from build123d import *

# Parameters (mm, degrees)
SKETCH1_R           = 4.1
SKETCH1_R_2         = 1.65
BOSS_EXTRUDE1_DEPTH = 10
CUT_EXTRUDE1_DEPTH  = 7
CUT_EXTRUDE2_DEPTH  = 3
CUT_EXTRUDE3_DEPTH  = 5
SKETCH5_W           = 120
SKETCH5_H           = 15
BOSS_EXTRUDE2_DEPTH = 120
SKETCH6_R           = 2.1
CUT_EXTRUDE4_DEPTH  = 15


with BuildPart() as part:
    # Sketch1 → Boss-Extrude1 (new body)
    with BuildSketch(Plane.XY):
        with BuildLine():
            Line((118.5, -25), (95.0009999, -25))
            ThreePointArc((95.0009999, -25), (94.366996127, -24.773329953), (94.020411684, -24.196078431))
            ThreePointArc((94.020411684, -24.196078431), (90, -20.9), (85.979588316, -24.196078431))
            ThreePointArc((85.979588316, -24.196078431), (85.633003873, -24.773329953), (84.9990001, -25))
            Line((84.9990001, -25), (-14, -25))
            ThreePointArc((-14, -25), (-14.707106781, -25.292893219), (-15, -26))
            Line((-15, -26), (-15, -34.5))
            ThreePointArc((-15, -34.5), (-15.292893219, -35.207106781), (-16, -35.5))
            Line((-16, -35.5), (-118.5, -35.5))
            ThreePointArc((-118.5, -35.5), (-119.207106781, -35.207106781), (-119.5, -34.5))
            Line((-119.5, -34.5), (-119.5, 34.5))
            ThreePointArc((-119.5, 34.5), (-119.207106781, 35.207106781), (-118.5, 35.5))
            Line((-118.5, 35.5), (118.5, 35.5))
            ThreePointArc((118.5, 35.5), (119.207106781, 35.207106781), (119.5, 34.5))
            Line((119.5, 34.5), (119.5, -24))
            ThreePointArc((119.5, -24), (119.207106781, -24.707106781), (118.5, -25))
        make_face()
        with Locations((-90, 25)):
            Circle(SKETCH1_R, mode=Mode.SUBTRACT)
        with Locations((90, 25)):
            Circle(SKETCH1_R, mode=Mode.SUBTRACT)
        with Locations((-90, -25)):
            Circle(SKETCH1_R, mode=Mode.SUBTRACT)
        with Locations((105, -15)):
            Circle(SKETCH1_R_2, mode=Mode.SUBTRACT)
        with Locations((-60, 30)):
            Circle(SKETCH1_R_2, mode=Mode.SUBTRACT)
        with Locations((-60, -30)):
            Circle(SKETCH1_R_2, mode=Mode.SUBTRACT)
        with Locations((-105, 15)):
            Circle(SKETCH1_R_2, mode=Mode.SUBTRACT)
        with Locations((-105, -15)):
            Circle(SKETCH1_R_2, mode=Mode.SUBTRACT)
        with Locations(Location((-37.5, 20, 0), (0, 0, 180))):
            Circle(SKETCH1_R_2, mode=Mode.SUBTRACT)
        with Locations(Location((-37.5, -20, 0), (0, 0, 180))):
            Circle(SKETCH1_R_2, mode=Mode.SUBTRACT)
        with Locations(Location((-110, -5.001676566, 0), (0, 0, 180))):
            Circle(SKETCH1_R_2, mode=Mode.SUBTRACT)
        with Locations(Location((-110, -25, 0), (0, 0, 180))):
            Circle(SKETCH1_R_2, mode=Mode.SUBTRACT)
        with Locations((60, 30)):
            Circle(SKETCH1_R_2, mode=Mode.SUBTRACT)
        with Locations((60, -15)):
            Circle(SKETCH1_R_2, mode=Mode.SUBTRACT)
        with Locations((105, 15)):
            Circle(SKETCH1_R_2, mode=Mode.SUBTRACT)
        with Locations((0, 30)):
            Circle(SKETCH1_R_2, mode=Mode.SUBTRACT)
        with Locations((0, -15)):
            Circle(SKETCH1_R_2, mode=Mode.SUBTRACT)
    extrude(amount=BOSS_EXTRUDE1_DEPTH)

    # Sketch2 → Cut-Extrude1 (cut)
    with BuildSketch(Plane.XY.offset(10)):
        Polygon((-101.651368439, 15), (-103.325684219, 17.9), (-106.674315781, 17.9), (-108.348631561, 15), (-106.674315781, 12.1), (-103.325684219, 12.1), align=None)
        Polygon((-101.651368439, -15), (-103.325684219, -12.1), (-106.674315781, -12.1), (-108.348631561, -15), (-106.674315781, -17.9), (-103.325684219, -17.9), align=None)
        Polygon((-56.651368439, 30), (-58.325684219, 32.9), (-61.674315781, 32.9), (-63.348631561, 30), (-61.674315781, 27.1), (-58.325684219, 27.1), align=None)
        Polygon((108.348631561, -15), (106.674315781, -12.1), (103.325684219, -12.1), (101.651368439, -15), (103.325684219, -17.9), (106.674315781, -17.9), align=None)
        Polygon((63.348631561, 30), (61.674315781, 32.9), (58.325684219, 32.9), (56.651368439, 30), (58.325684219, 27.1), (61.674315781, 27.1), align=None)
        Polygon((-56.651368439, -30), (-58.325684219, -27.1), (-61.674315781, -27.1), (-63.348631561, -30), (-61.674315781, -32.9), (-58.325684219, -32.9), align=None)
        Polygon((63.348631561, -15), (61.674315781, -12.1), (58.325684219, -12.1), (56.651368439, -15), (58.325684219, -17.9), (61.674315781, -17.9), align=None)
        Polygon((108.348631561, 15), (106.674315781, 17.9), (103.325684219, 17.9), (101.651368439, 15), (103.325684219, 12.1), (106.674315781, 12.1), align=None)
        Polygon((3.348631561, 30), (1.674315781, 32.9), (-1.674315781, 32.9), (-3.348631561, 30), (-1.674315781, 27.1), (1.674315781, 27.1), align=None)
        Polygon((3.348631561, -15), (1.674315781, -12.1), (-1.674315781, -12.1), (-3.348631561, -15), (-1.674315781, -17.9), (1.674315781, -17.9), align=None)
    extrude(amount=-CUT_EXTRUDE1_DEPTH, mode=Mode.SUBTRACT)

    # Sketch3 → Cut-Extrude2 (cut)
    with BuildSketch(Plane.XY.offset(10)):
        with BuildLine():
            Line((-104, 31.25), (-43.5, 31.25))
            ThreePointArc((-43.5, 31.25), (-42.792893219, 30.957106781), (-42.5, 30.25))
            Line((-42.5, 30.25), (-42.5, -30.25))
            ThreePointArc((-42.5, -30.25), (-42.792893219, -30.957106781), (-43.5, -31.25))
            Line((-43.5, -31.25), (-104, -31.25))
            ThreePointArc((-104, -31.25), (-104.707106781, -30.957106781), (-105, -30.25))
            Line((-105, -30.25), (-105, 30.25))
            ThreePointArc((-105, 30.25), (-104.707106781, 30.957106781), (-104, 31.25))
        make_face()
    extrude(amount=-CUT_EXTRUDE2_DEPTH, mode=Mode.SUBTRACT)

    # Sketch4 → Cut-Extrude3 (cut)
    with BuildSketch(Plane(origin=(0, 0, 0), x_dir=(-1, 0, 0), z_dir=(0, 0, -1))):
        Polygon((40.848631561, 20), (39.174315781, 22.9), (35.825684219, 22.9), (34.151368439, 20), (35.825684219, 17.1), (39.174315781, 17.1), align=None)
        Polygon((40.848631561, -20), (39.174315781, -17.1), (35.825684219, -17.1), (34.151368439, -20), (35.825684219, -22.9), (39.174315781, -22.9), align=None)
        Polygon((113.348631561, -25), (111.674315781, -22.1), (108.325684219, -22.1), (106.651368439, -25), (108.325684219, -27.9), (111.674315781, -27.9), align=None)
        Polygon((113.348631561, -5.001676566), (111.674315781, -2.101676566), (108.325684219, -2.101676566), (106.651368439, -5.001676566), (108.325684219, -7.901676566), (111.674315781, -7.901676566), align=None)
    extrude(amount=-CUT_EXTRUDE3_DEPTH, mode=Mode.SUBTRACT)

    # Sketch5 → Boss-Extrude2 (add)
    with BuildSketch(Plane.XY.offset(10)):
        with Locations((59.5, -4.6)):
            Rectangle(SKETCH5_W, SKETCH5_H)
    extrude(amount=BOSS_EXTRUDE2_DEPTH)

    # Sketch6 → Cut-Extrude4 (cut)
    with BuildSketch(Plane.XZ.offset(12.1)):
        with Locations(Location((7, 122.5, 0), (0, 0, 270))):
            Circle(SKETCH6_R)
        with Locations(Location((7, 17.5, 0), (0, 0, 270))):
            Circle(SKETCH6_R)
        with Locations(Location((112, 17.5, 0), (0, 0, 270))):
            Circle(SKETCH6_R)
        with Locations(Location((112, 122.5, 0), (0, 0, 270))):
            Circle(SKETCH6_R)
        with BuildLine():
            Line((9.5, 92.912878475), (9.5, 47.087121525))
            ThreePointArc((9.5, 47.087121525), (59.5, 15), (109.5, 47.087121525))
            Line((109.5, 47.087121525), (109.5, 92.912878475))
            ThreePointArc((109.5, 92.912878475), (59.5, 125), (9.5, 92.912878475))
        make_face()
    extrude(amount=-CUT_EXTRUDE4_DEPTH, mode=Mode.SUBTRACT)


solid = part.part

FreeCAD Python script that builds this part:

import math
import FreeCAD as App
import Part
import Sketcher

V = App.Vector
Q = App.Units.Quantity


def add_polygon(sketch, points):
    """Adds a closed chain of lines whose ends are joined by coincident constraints."""
    first, n = sketch.GeometryCount, len(points)
    for a, b in zip(points, points[1:] + points[:1]):
        sketch.addGeometry(Part.LineSegment(App.Vector(*a, 0), App.Vector(*b, 0)), False)
    for i in range(n):
        sketch.addConstraint(Sketcher.Constraint("Coincident", first + i, 2, first + (i + 1) % n, 1))

doc = App.newDocument("Part")
params = doc.addObject("Spreadsheet::Sheet", "Params")
for row, (alias, value) in enumerate([
    ("sketch1_radius", "1 mm"),
    ("sketch1_diameter", "3.3 mm"),
    ("sketch1_diameter2", "8.2 mm"),
    ("sketch1_width", "237 mm"),
    ("sketch1_height", "69 mm"),
    ("pad1_length", "10 mm"),
    ("pocket1_length", "7 mm"),
    ("sketch3_radius", "1 mm"),
    ("sketch3_width", "60.5 mm"),
    ("pocket2_length", "3 mm"),
    ("pocket3_length", "5 mm"),
    ("sketch5_width", "120 mm"),
    ("sketch5_height", "15 mm"),
    ("pad2_length", "120 mm"),
    ("sketch6_radius", "55 mm"),
    ("sketch6_diameter", "4.2 mm"),
    ("pocket4_length", "15 mm"),
], start=1):
    params.set(f"A{row}", alias)
    params.set(f"B{row}", "=" + value)
    params.setAlias(f"B{row}", alias)

body = doc.addObject("PartDesign::Body", "Body")

# Sketch on XY plane
sketch1 = body.newObject("Sketcher::SketchObject", "Sketch")
sketch1.AttachmentSupport = (doc.getObject("XY_Plane"), [""])
sketch1.MapMode = "FlatFace"
sketch1.addGeometry([
    Part.LineSegment(V(95, -25, 0), V(118.5, -25, 0)),  # 0
    Part.ArcOfCircle(Part.Circle(V(118.5, -24, 0), V(0, 0, 1), 1), math.radians(-90), math.radians(0)),  # 1
    Part.LineSegment(V(119.5, -24, 0), V(119.5, 34.5, 0)),  # 2
    Part.ArcOfCircle(Part.Circle(V(118.5, 34.5, 0), V(0, 0, 1), 1), math.radians(0), math.radians(90)),  # 3
    Part.LineSegment(V(118.5, 35.5, 0), V(-118.5, 35.5, 0)),  # 4
    Part.ArcOfCircle(Part.Circle(V(-118.5, 34.5, 0), V(0, 0, 1), 1), math.radians(90), math.radians(180)),  # 5
    Part.LineSegment(V(-119.5, 34.5, 0), V(-119.5, -34.5, 0)),  # 6
    Part.ArcOfCircle(Part.Circle(V(-118.5, -34.5, 0), V(0, 0, 1), 1), math.radians(-180), math.radians(-90)),  # 7
    Part.LineSegment(V(-118.5, -35.5, 0), V(-16, -35.5, 0)),  # 8
    Part.ArcOfCircle(Part.Circle(V(-16, -34.5, 0), V(0, 0, 1), 1), math.radians(-90), math.radians(0)),  # 9
    Part.LineSegment(V(-15, -34.5, 0), V(-15, -26, 0)),  # 10
    Part.ArcOfCircle(Part.Circle(V(-14, -26, 0), V(0, 0, 1), 1), math.radians(90), math.radians(180)),  # 11
    Part.LineSegment(V(-14, -25, 0), V(85, -25, 0)),  # 12
    Part.ArcOfCircle(Part.Circle(V(85, -24, 0), V(0, 0, 1), 1), math.radians(-90), math.radians(-11)),  # 13
    Part.ArcOfCircle(Part.Circle(V(90, -25, 0), V(0, 0, 1), 4.1), math.radians(11), math.radians(169)),  # 14
    Part.ArcOfCircle(Part.Circle(V(95, -24, 0), V(0, 0, 1), 1), math.radians(-169), math.radians(-90)),  # 15
    Part.Circle(V(105, -15, 0), V(0, 0, 1), 1.6),  # 16
    Part.Circle(V(60, -15, 0), V(0, 0, 1), 1.6),  # 17
    Part.Circle(V(0, -15, 0), V(0, 0, 1), 1.6),  # 18
    Part.Circle(V(-37.5, -20, 0), V(0, 0, 1), 1.6),  # 19
    Part.Circle(V(-60, -30, 0), V(0, 0, 1), 1.6),  # 20
    Part.Circle(V(-90, -25, 0), V(0, 0, 1), 4.1),  # 21
    Part.Circle(V(-110, -25, 0), V(0, 0, 1), 1.6),  # 22
    Part.Circle(V(-105, -15, 0), V(0, 0, 1), 1.6),  # 23
    Part.Circle(V(-110, -5, 0), V(0, 0, 1), 1.6),  # 24
    Part.Circle(V(105, 15, 0), V(0, 0, 1), 1.6),  # 25
    Part.Circle(V(90, 25, 0), V(0, 0, 1), 4.1),  # 26
    Part.Circle(V(60, 30, 0), V(0, 0, 1), 1.6),  # 27
    Part.Circle(V(0, 30, 0), V(0, 0, 1), 1.6),  # 28
    Part.Circle(V(-105, 15, 0), V(0, 0, 1), 1.6),  # 29
    Part.Circle(V(-37.5, 20, 0), V(0, 0, 1), 1.6),  # 30
    Part.Circle(V(-60, 30, 0), V(0, 0, 1), 1.6),  # 31
    Part.Circle(V(-90, 25, 0), V(0, 0, 1), 4.1),  # 32
], False)
sketch1.addConstraint([
    Sketcher.Constraint("Tangent", 0, 2, 1, 1),
    Sketcher.Constraint("Tangent", 1, 2, 2, 1),
    Sketcher.Constraint("Tangent", 2, 2, 3, 1),
    Sketcher.Constraint("Tangent", 3, 2, 4, 1),
    Sketcher.Constraint("Tangent", 4, 2, 5, 1),
    Sketcher.Constraint("Tangent", 5, 2, 6, 1),
    Sketcher.Constraint("Tangent", 6, 2, 7, 1),
    Sketcher.Constraint("Tangent", 7, 2, 8, 1),
    Sketcher.Constraint("Tangent", 8, 2, 9, 1),
    Sketcher.Constraint("Tangent", 9, 2, 10, 1),
    Sketcher.Constraint("Tangent", 10, 2, 11, 2),
    Sketcher.Constraint("Tangent", 11, 1, 12, 1),
    Sketcher.Constraint("Tangent", 12, 2, 13, 1),
    Sketcher.Constraint("Tangent", 13, 2, 14, 2),
    Sketcher.Constraint("Tangent", 14, 1, 15, 1),
    Sketcher.Constraint("Tangent", 15, 2, 0, 1),
    Sketcher.Constraint("Horizontal", 0),
    Sketcher.Constraint("Vertical", 2),
    Sketcher.Constraint("Horizontal", 4),
    Sketcher.Constraint("Vertical", 6),
    Sketcher.Constraint("Horizontal", 8),
    Sketcher.Constraint("Vertical", 10),
    Sketcher.Constraint("Horizontal", 12),
    Sketcher.Constraint("Equal", 1, 3),
    Sketcher.Constraint("Equal", 3, 5),
    Sketcher.Constraint("Equal", 5, 7),
    Sketcher.Constraint("Equal", 7, 9),
    Sketcher.Constraint("Equal", 9, 11),
    Sketcher.Constraint("Equal", 11, 13),
    Sketcher.Constraint("Equal", 13, 15),
    Sketcher.Constraint("Equal", 16, 17),
    Sketcher.Constraint("Equal", 17, 18),
    Sketcher.Constraint("Equal", 18, 19),
    Sketcher.Constraint("Equal", 19, 20),
    Sketcher.Constraint("Equal", 14, 21),
    Sketcher.Constraint("Equal", 20, 22),
    Sketcher.Constraint("Equal", 22, 23),
    Sketcher.Constraint("Equal", 23, 24),
    Sketcher.Constraint("Equal", 24, 25),
    Sketcher.Constraint("Equal", 21, 26),
    Sketcher.Constraint("Equal", 25, 27),
    Sketcher.Constraint("Equal", 27, 28),
    Sketcher.Constraint("Equal", 28, 29),
    Sketcher.Constraint("Equal", 29, 30),
    Sketcher.Constraint("Equal", 30, 31),
    Sketcher.Constraint("Equal", 26, 32),
    Sketcher.Constraint("Symmetric", 3, 3, 7, 3, -1, 1),
    Sketcher.Constraint("Symmetric", 23, 3, 25, 3, -1, 1),
    Sketcher.Constraint("Symmetric", 21, 3, 26, 3, -1, 1),
    Sketcher.Constraint("Symmetric", 20, 3, 27, 3, -1, 1),
    Sketcher.Constraint("Symmetric", 16, 3, 29, 3, -1, 1),
    Sketcher.Constraint("Symmetric", 14, 3, 32, 3, -1, 1),
    Sketcher.Constraint("Symmetric", 14, 3, 21, 3, -2),
    Sketcher.Constraint("Symmetric", 16, 3, 23, 3, -2),
    Sketcher.Constraint("Symmetric", 27, 3, 31, 3, -2),
    Sketcher.Constraint("Symmetric", 19, 3, 30, 3, -1),
    Sketcher.Constraint("PointOnObject", 18, 3, -2),
    Sketcher.Constraint("PointOnObject", 28, 3, -2),
    Sketcher.Constraint("Horizontal", 1, 3, 13, 3),
    Sketcher.Constraint("Horizontal", 16, 3, 17, 3),
    Sketcher.Constraint("Horizontal", 17, 3, 18, 3),
    Sketcher.Constraint("Horizontal", 21, 3, 22, 3),
    Sketcher.Constraint("Horizontal", 27, 3, 28, 3),
    Sketcher.Constraint("Horizontal", 22, 3, 0, 2),
    Sketcher.Constraint("Vertical", 22, 3, 24, 3),
    Sketcher.Constraint("Vertical", 17, 3, 27, 3),
    Sketcher.Constraint("Radius", 1, Q("1 mm")),
    Sketcher.Constraint("Diameter", 16, Q("3.3 mm")),
    Sketcher.Constraint("Diameter", 21, Q("8.2 mm")),
    Sketcher.Constraint("DistanceX", 4, 2, 4, 1, Q("237 mm")),
    Sketcher.Constraint("DistanceY", 6, 2, 6, 1, Q("69 mm")),
    Sketcher.Constraint("DistanceX", 8, 1, 8, 2, Q("102.5 mm")),
    Sketcher.Constraint("DistanceY", 2, 1, 2, 2, Q("58.5 mm")),
    Sketcher.Constraint("DistanceX", -1, 1, 14, 3, Q("90 mm")),
    Sketcher.Constraint("DistanceX", -1, 1, 16, 3, Q("105 mm")),
    Sketcher.Constraint("DistanceY", 16, 3, -1, 1, Q("15 mm")),
    Sketcher.Constraint("DistanceX", -1, 1, 17, 3, Q("60 mm")),
    Sketcher.Constraint("DistanceY", 19, 3, -1, 1, Q("20 mm")),
    Sketcher.Constraint("DistanceY", 20, 3, -1, 1, Q("30 mm")),
    Sketcher.Constraint("DistanceX", 22, 3, -1, 1, Q("110 mm")),
    Sketcher.Constraint("DistanceX", 7, 3, 19, 3, Q("81 mm")),
    Sketcher.Constraint("DistanceY", 24, 3, -1, 1, Q("5.001677 mm")),
])
sketch1.setExpression("Constraints[66]", "Params.sketch1_radius")
sketch1.setExpression("Constraints[67]", "Params.sketch1_diameter")
sketch1.setExpression("Constraints[68]", "Params.sketch1_diameter2")
sketch1.setExpression("Constraints[69]", "Params.sketch1_width")
sketch1.setExpression("Constraints[70]", "Params.sketch1_height")
pad1 = body.newObject("PartDesign::Pad", "Pad")
pad1.Profile = sketch1
pad1.setExpression("Length", "Params.pad1_length")

# Sketch on XY plane
sketch2 = body.newObject("Sketcher::SketchObject", "Sketch001")
sketch2.AttachmentSupport = (doc.getObject("XY_Plane"), [""])
sketch2.MapMode = "FlatFace"
sketch2.AttachmentOffset = App.Placement(V(0, 0, 10), App.Rotation())
add_polygon(sketch2, [(-101.7, 15), (-103.3, 17.9), (-106.7, 17.9), (-108.3, 15), (-106.7, 12.1), (-103.3, 12.1)])  # lines 0-5
add_polygon(sketch2, [(-101.7, -15), (-103.3, -12.1), (-106.7, -12.1), (-108.3, -15), (-106.7, -17.9), (-103.3, -17.9)])  # lines 6-11
add_polygon(sketch2, [(-56.7, 30), (-58.3, 32.9), (-61.7, 32.9), (-63.3, 30), (-61.7, 27.1), (-58.3, 27.1)])  # lines 12-17
add_polygon(sketch2, [(108.3, -15), (106.7, -12.1), (103.3, -12.1), (101.7, -15), (103.3, -17.9), (106.7, -17.9)])  # lines 18-23
add_polygon(sketch2, [(63.3, 30), (61.7, 32.9), (58.3, 32.9), (56.7, 30), (58.3, 27.1), (61.7, 27.1)])  # lines 24-29
add_polygon(sketch2, [(-56.7, -30), (-58.3, -27.1), (-61.7, -27.1), (-63.3, -30), (-61.7, -32.9), (-58.3, -32.9)])  # lines 30-35
add_polygon(sketch2, [(63.3, -15), (61.7, -12.1), (58.3, -12.1), (56.7, -15), (58.3, -17.9), (61.7, -17.9)])  # lines 36-41
add_polygon(sketch2, [(108.3, 15), (106.7, 17.9), (103.3, 17.9), (101.7, 15), (103.3, 12.1), (106.7, 12.1)])  # lines 42-47
add_polygon(sketch2, [(3.3, 30), (1.7, 32.9), (-1.7, 32.9), (-3.3, 30), (-1.7, 27.1), (1.7, 27.1)])  # lines 48-53
add_polygon(sketch2, [(3.3, -15), (1.7, -12.1), (-1.7, -12.1), (-3.3, -15), (-1.7, -17.9), (1.7, -17.9)])  # lines 54-59
sketch2.addConstraint([
    Sketcher.Constraint("Horizontal", 1),
    Sketcher.Constraint("Horizontal", 4),
    Sketcher.Constraint("Horizontal", 7),
    Sketcher.Constraint("Horizontal", 10),
    Sketcher.Constraint("Horizontal", 13),
    Sketcher.Constraint("Horizontal", 16),
    Sketcher.Constraint("Horizontal", 19),
    Sketcher.Constraint("Horizontal", 22),
    Sketcher.Constraint("Horizontal", 25),
    Sketcher.Constraint("Horizontal", 28),
    Sketcher.Constraint("Horizontal", 31),
    Sketcher.Constraint("Horizontal", 34),
    Sketcher.Constraint("Horizontal", 37),
    Sketcher.Constraint("Horizontal", 40),
    Sketcher.Constraint("Horizontal", 43),
    Sketcher.Constraint("Horizontal", 46),
    Sketcher.Constraint("Horizontal", 49),
    Sketcher.Constraint("Horizontal", 52),
    Sketcher.Constraint("Horizontal", 55),
    Sketcher.Constraint("Horizontal", 58),
    Sketcher.Constraint("Symmetric", 3, 2, 18, 2, -1, 1),
    Sketcher.Constraint("Symmetric", 5, 2, 20, 2, -1, 1),
    Sketcher.Constraint("Symmetric", 0, 2, 21, 2, -1, 1),
    Sketcher.Constraint("Symmetric", 2, 2, 23, 2, -1, 1),
    Sketcher.Constraint("Symmetric", 27, 2, 30, 2, -1, 1),
    Sketcher.Constraint("Symmetric", 29, 2, 32, 2, -1, 1),
    Sketcher.Constraint("Symmetric", 24, 2, 33, 2, -1, 1),
    Sketcher.Constraint("Symmetric", 26, 2, 35, 2, -1, 1),
    Sketcher.Constraint("Symmetric", 9, 2, 42, 2, -1, 1),
    Sketcher.Constraint("Symmetric", 11, 2, 44, 2, -1, 1),
    Sketcher.Constraint("Symmetric", 6, 2, 45, 2, -1, 1),
    Sketcher.Constraint("Symmetric", 8, 2, 47, 2, -1, 1),
    Sketcher.Constraint("Symmetric", 7, 2, 18, 2, -2),
    Sketcher.Constraint("Symmetric", 11, 2, 20, 2, -2),
    Sketcher.Constraint("Symmetric", 10, 2, 21, 2, -2),
    Sketcher.Constraint("Symmetric", 8, 2, 23, 2, -2),
    Sketcher.Constraint("Symmetric", 13, 2, 24, 2, -2),
    Sketcher.Constraint("Symmetric", 17, 2, 26, 2, -2),
    Sketcher.Constraint("Symmetric", 16, 2, 27, 2, -2),
    Sketcher.Constraint("Symmetric", 14, 2, 29, 2, -2),
    Sketcher.Constraint("Symmetric", 50, 2, 53, 2, -2),
    Sketcher.Constraint("Symmetric", 56, 2, 59, 2, -2),
    Sketcher.Constraint("Parallel", 0, 3),
    Sketcher.Constraint("Parallel", 2, 5),
    Sketcher.Constraint("Parallel", 3, 6),
    Sketcher.Constraint("Parallel", 5, 8),
    Sketcher.Constraint("Parallel", 6, 9),
    Sketcher.Constraint("Parallel", 9, 12),
    Sketcher.Constraint("Parallel", 11, 14),
    Sketcher.Constraint("Parallel", 12, 15),
    Sketcher.Constraint("Parallel", 14, 17),
    Sketcher.Constraint("Parallel", 17, 20),
    Sketcher.Constraint("Parallel", 20, 23),
    Sketcher.Constraint("Parallel", 23, 26),
    Sketcher.Constraint("Parallel", 26, 29),
    Sketcher.Constraint("Parallel", 29, 32),
    Sketcher.Constraint("Parallel", 32, 35),
    Sketcher.Constraint("Parallel", 33, 36),
    Sketcher.Constraint("Parallel", 35, 38),
    Sketcher.Constraint("Parallel", 36, 39),
    Sketcher.Constraint("Parallel", 38, 41),
    Sketcher.Constraint("Parallel", 41, 44),
    Sketcher.Constraint("Parallel", 44, 47),
    Sketcher.Constraint("Parallel", 45, 48),
    Sketcher.Constraint("Parallel", 47, 50),
    Sketcher.Constraint("Parallel", 48, 51),
    Sketcher.Constraint("Parallel", 50, 53),
    Sketcher.Constraint("Parallel", 51, 54),
    Sketcher.Constraint("Parallel", 53, 56),
    Sketcher.Constraint("Parallel", 54, 57),
    Sketcher.Constraint("Parallel", 56, 59),
    Sketcher.Constraint("Horizontal", 2, 2, 5, 2),
    Sketcher.Constraint("Horizontal", 14, 2, 17, 2),
    Sketcher.Constraint("Horizontal", 19, 2, 36, 2),
    Sketcher.Constraint("Horizontal", 23, 2, 38, 2),
    Sketcher.Constraint("Horizontal", 22, 2, 39, 2),
    Sketcher.Constraint("Horizontal", 38, 2, 41, 2),
    Sketcher.Constraint("Horizontal", 25, 2, 48, 2),
    Sketcher.Constraint("Horizontal", 29, 2, 50, 2),
    Sketcher.Constraint("Horizontal", 28, 2, 51, 2),
    Sketcher.Constraint("Horizontal", 37, 2, 54, 2),
    Sketcher.Constraint("Horizontal", 41, 2, 56, 2),
    Sketcher.Constraint("Horizontal", 40, 2, 57, 2),
    Sketcher.Constraint("Vertical", 1, 2, 3, 2),
    Sketcher.Constraint("Vertical", 13, 2, 15, 2),
    Sketcher.Constraint("Vertical", 28, 2, 36, 2),
    Sketcher.Constraint("Vertical", 27, 2, 37, 2),
    Sketcher.Constraint("Vertical", 26, 2, 38, 2),
    Sketcher.Constraint("Vertical", 52, 2, 54, 2),
    Sketcher.Constraint("Equal", 10, 13),
    Sketcher.Constraint("Equal", 46, 49),
    Sketcher.Constraint("Angle", 0, Q("120 deg")),
    Sketcher.Constraint("DistanceY", -1, 1, 2, 2, Q("15 mm")),
    Sketcher.Constraint("DistanceY", -1, 1, 14, 2, Q("30 mm")),
    Sketcher.Constraint("DistanceX", 0, 2, 12, 2, Q("45 mm")),
    Sketcher.Constraint("DistanceX", 16, 2, 18, 2, Q("165 mm")),
    Sketcher.Constraint("DistanceY", -1, 1, 0, 2, Q("17.9 mm")),
    Sketcher.Constraint("DistanceX", 1, 2, 1, 1, Q("3.348632 mm")),
])
pocket1 = body.newObject("PartDesign::Pocket", "Pocket")
pocket1.Profile = sketch2
pocket1.setExpression("Length", "Params.pocket1_length")

# Sketch on XY plane
sketch3 = body.newObject("Sketcher::SketchObject", "Sketch002")
sketch3.AttachmentSupport = (doc.getObject("XY_Plane"), [""])
sketch3.MapMode = "FlatFace"
sketch3.AttachmentOffset = App.Placement(V(0, 0, 10), App.Rotation())
sketch3.addGeometry([
    Part.LineSegment(V(-43.5, 31.2, 0), V(-104, 31.2, 0)),  # 0
    Part.ArcOfCircle(Part.Circle(V(-104, 30.2, 0), V(0, 0, 1), 1), math.radians(90), math.radians(180)),  # 1
    Part.LineSegment(V(-105, 30.2, 0), V(-105, -30.2, 0)),  # 2
    Part.ArcOfCircle(Part.Circle(V(-104, -30.2, 0), V(0, 0, 1), 1), math.radians(-180), math.radians(-90)),  # 3
    Part.LineSegment(V(-104, -31.2, 0), V(-43.5, -31.2, 0)),  # 4
    Part.ArcOfCircle(Part.Circle(V(-43.5, -30.2, 0), V(0, 0, 1), 1), math.radians(-90), math.radians(0)),  # 5
    Part.LineSegment(V(-42.5, -30.2, 0), V(-42.5, 30.2, 0)),  # 6
    Part.ArcOfCircle(Part.Circle(V(-43.5, 30.2, 0), V(0, 0, 1), 1), math.radians(0), math.radians(90)),  # 7
], False)
sketch3.addConstraint([
    Sketcher.Constraint("Tangent", 0, 2, 1, 1),
    Sketcher.Constraint("Tangent", 1, 2, 2, 1),
    Sketcher.Constraint("Tangent", 2, 2, 3, 1),
    Sketcher.Constraint("Tangent", 3, 2, 4, 1),
    Sketcher.Constraint("Tangent", 4, 2, 5, 1),
    Sketcher.Constraint("Tangent", 5, 2, 6, 1),
    Sketcher.Constraint("Tangent", 6, 2, 7, 1),
    Sketcher.Constraint("Tangent", 7, 2, 0, 1),
    Sketcher.Constraint("Horizontal", 0),
    Sketcher.Constraint("Vertical", 2),
    Sketcher.Constraint("Horizontal", 4),
    Sketcher.Constraint("Vertical", 6),
    Sketcher.Constraint("Equal", 1, 3),
    Sketcher.Constraint("Equal", 3, 5),
    Sketcher.Constraint("Equal", 5, 7),
    Sketcher.Constraint("Equal", 4, 2),
    Sketcher.Constraint("Radius", 1, Q("1 mm")),
    Sketcher.Constraint("DistanceX", 0, 2, 0, 1, Q("60.5 mm")),
    Sketcher.Constraint("DistanceX", 1, 3, -1, 1, Q("104 mm")),
    Sketcher.Constraint("DistanceY", -1, 1, 1, 3, Q("30.25 mm")),
])
sketch3.setExpression("Constraints[16]", "Params.sketch3_radius")
sketch3.setExpression("Constraints[17]", "Params.sketch3_width")
pocket2 = body.newObject("PartDesign::Pocket", "Pocket001")
pocket2.Profile = sketch3
pocket2.setExpression("Length", "Params.pocket2_length")

# Sketch on XY plane
sketch4 = body.newObject("Sketcher::SketchObject", "Sketch003")
sketch4.AttachmentSupport = (doc.getObject("XY_Plane"), [""])
sketch4.MapMode = "FlatFace"
add_polygon(sketch4, [(-40.8, 20), (-39.2, 22.9), (-35.8, 22.9), (-34.2, 20), (-35.8, 17.1), (-39.2, 17.1)])  # lines 0-5
add_polygon(sketch4, [(-40.8, -20), (-39.2, -17.1), (-35.8, -17.1), (-34.2, -20), (-35.8, -22.9), (-39.2, -22.9)])  # lines 6-11
add_polygon(sketch4, [(-113.3, -25), (-111.7, -22.1), (-108.3, -22.1), (-106.7, -25), (-108.3, -27.9), (-111.7, -27.9)])  # lines 12-17
add_polygon(sketch4, [(-113.3, -5), (-111.7, -2.1), (-108.3, -2.1), (-106.7, -5), (-108.3, -7.9), (-111.7, -7.9)])  # lines 18-23
sketch4.addConstraint([
    Sketcher.Constraint("Horizontal", 1),
    Sketcher.Constraint("Horizontal", 4),
    Sketcher.Constraint("Horizontal", 7),
    Sketcher.Constraint("Horizontal", 10),
    Sketcher.Constraint("Horizontal", 13),
    Sketcher.Constraint("Horizontal", 16),
    Sketcher.Constraint("Horizontal", 19),
    Sketcher.Constraint("Horizontal", 22),
    Sketcher.Constraint("Symmetric", 4, 2, 6, 2, -1),
    Sketcher.Constraint("Symmetric", 2, 2, 8, 2, -1),
    Sketcher.Constraint("Symmetric", 1, 2, 9, 2, -1),
    Sketcher.Constraint("Symmetric", 5, 2, 11, 2, -1),
    Sketcher.Constraint("Parallel", 0, 3),
    Sketcher.Constraint("Parallel", 2, 5),
    Sketcher.Constraint("Parallel", 3, 6),
    Sketcher.Constraint("Parallel", 5, 8),
    Sketcher.Constraint("Parallel", 8, 11),
    Sketcher.Constraint("Parallel", 9, 12),
    Sketcher.Constraint("Parallel", 11, 14),
    Sketcher.Constraint("Parallel", 12, 15),
    Sketcher.Constraint("Parallel", 14, 17),
    Sketcher.Constraint("Parallel", 15, 18),
    Sketcher.Constraint("Parallel", 17, 20),
    Sketcher.Constraint("Parallel", 18, 21),
    Sketcher.Constraint("Parallel", 20, 23),
    Sketcher.Constraint("Horizontal", 2, 2, 5, 2),
    Sketcher.Constraint("Horizontal", 14, 2, 17, 2),
    Sketcher.Constraint("Horizontal", 20, 2, 23, 2),
    Sketcher.Constraint("Vertical", 1, 2, 3, 2),
    Sketcher.Constraint("Vertical", 13, 2, 15, 2),
    Sketcher.Constraint("Vertical", 16, 2, 18, 2),
    Sketcher.Constraint("Vertical", 15, 2, 19, 2),
    Sketcher.Constraint("Vertical", 14, 2, 20, 2),
    Sketcher.Constraint("Vertical", 19, 2, 21, 2),
    Sketcher.Constraint("Equal", 10, 13),
    Sketcher.Constraint("Equal", 11, 12),
    Sketcher.Constraint("Angle", 0, Q("60 deg")),
    Sketcher.Constraint("DistanceY", -1, 1, 2, 2, Q("20 mm")),
    Sketcher.Constraint("DistanceY", 14, 2, -1, 1, Q("25 mm")),
    Sketcher.Constraint("DistanceY", -1, 1, 0, 2, Q("22.9 mm")),
    Sketcher.Constraint("DistanceX", 12, 2, 10, 2, Q("72.5 mm")),
    Sketcher.Constraint("DistanceX", 1, 1, 1, 2, Q("3.348632 mm")),
    Sketcher.Constraint("DistanceX", 2, 2, -1, 1, Q("34.151368 mm")),
    Sketcher.Constraint("DistanceY", 18, 2, -1, 1, Q("2.101677 mm")),
])
pocket3 = body.newObject("PartDesign::Pocket", "Pocket002")
pocket3.Profile = sketch4
pocket3.setExpression("Length", "Params.pocket3_length")
pocket3.Reversed = True

# Sketch on XY plane
sketch5 = body.newObject("Sketcher::SketchObject", "Sketch004")
sketch5.AttachmentSupport = (doc.getObject("XY_Plane"), [""])
sketch5.MapMode = "FlatFace"
sketch5.AttachmentOffset = App.Placement(V(0, 0, 10), App.Rotation())
add_polygon(sketch5, [(0, 3), (0, -12), (120, -12), (120, 3)])  # lines 0-3
sketch5.addConstraint([
    Sketcher.Constraint("Vertical", 0),
    Sketcher.Constraint("Horizontal", 1),
    Sketcher.Constraint("Vertical", 2),
    Sketcher.Constraint("Horizontal", 3),
    Sketcher.Constraint("DistanceX", 1, 1, 1, 2, Q("120 mm")),
    Sketcher.Constraint("DistanceY", 0, 2, 0, 1, Q("15 mm")),
    Sketcher.Constraint("DistanceX", 0, 2, -1, 1, Q("0.5 mm")),
    Sketcher.Constraint("DistanceY", 0, 2, -1, 1, Q("12.1 mm")),
])
sketch5.setExpression("Constraints[8]", "Params.sketch5_width")
sketch5.setExpression("Constraints[9]", "Params.sketch5_height")
pad2 = body.newObject("PartDesign::Pad", "Pad001")
pad2.Profile = sketch5
pad2.setExpression("Length", "Params.pad2_length")

# Sketch on XZ plane
sketch6 = body.newObject("Sketcher::SketchObject", "Sketch005")
sketch6.AttachmentSupport = (doc.getObject("XZ_Plane"), [""])
sketch6.MapMode = "FlatFace"
sketch6.AttachmentOffset = App.Placement(V(0, 0, 12.1), App.Rotation())
sketch6.addGeometry([
    Part.Circle(V(7, 122.5, 0), V(0, 0, 1), 2.1),  # 0
    Part.Circle(V(7, 17.5, 0), V(0, 0, 1), 2.1),  # 1
    Part.Circle(V(112, 17.5, 0), V(0, 0, 1), 2.1),  # 2
    Part.Circle(V(112, 122.5, 0), V(0, 0, 1), 2.1),  # 3
    Part.LineSegment(V(9.5, 92.9, 0), V(9.5, 47.1, 0)),  # 4
    Part.ArcOfCircle(Part.Circle(V(59.5, 70, 0), V(0, 0, 1), 55), math.radians(-155), math.radians(-25)),  # 5
    Part.LineSegment(V(109.5, 47.1, 0), V(109.5, 92.9, 0)),  # 6
    Part.ArcOfCircle(Part.Circle(V(59.5, 70, 0), V(0, 0, 1), 55), math.radians(25), math.radians(155)),  # 7
], False)
sketch6.addConstraint([
    Sketcher.Constraint("Coincident", 4, 2, 5, 1),
    Sketcher.Constraint("Coincident", 5, 2, 6, 1),
    Sketcher.Constraint("Coincident", 6, 2, 7, 1),
    Sketcher.Constraint("Coincident", 7, 2, 4, 1),
    Sketcher.Constraint("Vertical", 4),
    Sketcher.Constraint("Vertical", 6),
    Sketcher.Constraint("Coincident", 7, 3, 5, 3),
    Sketcher.Constraint("Equal", 0, 1),
    Sketcher.Constraint("Equal", 1, 2),
    Sketcher.Constraint("Equal", 2, 3),
    Sketcher.Constraint("Equal", 5, 7),
    Sketcher.Constraint("Horizontal", 1, 3, 2, 3),
    Sketcher.Constraint("Horizontal", 0, 3, 3, 3),
    Sketcher.Constraint("Horizontal", 4, 2, 5, 2),
    Sketcher.Constraint("Vertical", 0, 3, 1, 3),
    Sketcher.Constraint("Vertical", 2, 3, 3, 3),
    Sketcher.Constraint("Radius", 5, Q("55 mm")),
    Sketcher.Constraint("Diameter", 0, Q("4.2 mm")),
    Sketcher.Constraint("DistanceX", -1, 1, 0, 3, Q("7 mm")),
    Sketcher.Constraint("DistanceX", -1, 1, 2, 3, Q("112 mm")),
    Sketcher.Constraint("DistanceY", -1, 1, 5, 3, Q("70 mm")),
    Sketcher.Constraint("DistanceY", 1, 3, 0, 3, Q("105 mm")),
    Sketcher.Constraint("DistanceX", 4, 2, 5, 3, Q("50 mm")),
    Sketcher.Constraint("DistanceY", -1, 1, 0, 3, Q("122.5 mm")),
    Sketcher.Constraint("DistanceX", -1, 1, 5, 3, Q("59.5 mm")),
])
sketch6.setExpression("Constraints[16]", "Params.sketch6_radius")
sketch6.setExpression("Constraints[17]", "Params.sketch6_diameter")
pocket4 = body.newObject("PartDesign::Pocket", "Pocket003")
pocket4.Profile = sketch6
pocket4.setExpression("Length", "Params.pocket4_length")

doc.recompute()
